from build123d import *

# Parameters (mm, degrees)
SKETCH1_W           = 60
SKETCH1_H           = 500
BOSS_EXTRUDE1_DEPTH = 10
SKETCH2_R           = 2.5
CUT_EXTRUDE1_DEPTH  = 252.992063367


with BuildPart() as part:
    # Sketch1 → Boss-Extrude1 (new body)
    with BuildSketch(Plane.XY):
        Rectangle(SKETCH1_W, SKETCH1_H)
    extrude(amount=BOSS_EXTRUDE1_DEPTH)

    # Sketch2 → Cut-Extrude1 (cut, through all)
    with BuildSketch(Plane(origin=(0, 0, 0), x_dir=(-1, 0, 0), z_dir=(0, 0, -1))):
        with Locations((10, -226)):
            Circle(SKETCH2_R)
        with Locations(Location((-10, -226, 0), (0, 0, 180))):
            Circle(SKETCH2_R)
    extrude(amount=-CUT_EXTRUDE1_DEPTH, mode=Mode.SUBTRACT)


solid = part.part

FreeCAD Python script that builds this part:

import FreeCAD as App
import Part
import Sketcher

doc = App.newDocument("Part")
body = doc.addObject("PartDesign::Body", "Body")

sketch1 = body.newObject("Sketcher::SketchObject", "Sketch")
sketch1.AttachmentSupport = (doc.getObject("XY_Plane"), [""])
sketch1.MapMode = "FlatFace"
sketch1.addGeometry(Part.LineSegment(App.Vector(-30, 250, 0), App.Vector(-30, -250, 0)), False)
sketch1.addGeometry(Part.LineSegment(App.Vector(-30, -250, 0), App.Vector(30, -250, 0)), False)
sketch1.addGeometry(Part.LineSegment(App.Vector(30, -250, 0), App.Vector(30, 250, 0)), False)
sketch1.addGeometry(Part.LineSegment(App.Vector(30, 250, 0), App.Vector(-30, 250, 0)), False)
sketch1.addConstraint(Sketcher.Constraint("Coincident", 0, 2, 1, 1))
sketch1.addConstraint(Sketcher.Constraint("Coincident", 1, 2, 2, 1))
sketch1.addConstraint(Sketcher.Constraint("Coincident", 2, 2, 3, 1))
sketch1.addConstraint(Sketcher.Constraint("Coincident", 3, 2, 0, 1))
sketch1.addConstraint(Sketcher.Constraint("Vertical", 0))
sketch1.addConstraint(Sketcher.Constraint("Horizontal", 1))
sketch1.addConstraint(Sketcher.Constraint("Vertical", 2))
sketch1.addConstraint(Sketcher.Constraint("Horizontal", 3))
sketch1.addConstraint(Sketcher.Constraint("Symmetric", 0, 2, 2, 2, -1, 1))
sketch1.addConstraint(Sketcher.Constraint("DistanceX", 1, 1, 1, 2, 60.0))
sketch1.addConstraint(Sketcher.Constraint("DistanceY", 0, 2, 0, 1, 500.0))
pad1 = body.newObject("PartDesign::Pad", "Pad")
pad1.Profile = sketch1
pad1.Length = 10

sketch2 = body.newObject("Sketcher::SketchObject", "Sketch001")
sketch2.AttachmentSupport = (doc.getObject("XY_Plane"), [""])
sketch2.MapMode = "FlatFace"
sketch2.addGeometry(Part.Circle(App.Vector(-10, -226, 0), App.Vector(0, 0, 1), 2.5), False)
sketch2.addGeometry(Part.Circle(App.Vector(10, -226, 0), App.Vector(0, 0, 1), 2.5), False)
sketch2.addConstraint(Sketcher.Constraint("Equal", 0, 1))
sketch2.addConstraint(Sketcher.Constraint("Symmetric", 0, 3, 1, 3, -2))
sketch2.addConstraint(Sketcher.Constraint("Diameter", 0, 5.0))
sketch2.addConstraint(Sketcher.Constraint("DistanceX", 0, 3, -1, 1, 10.0))
sketch2.addConstraint(Sketcher.Constraint("DistanceY", 0, 3, -1, 1, 226.0))
pocket1 = body.newObject("PartDesign::Pocket", "Pocket")
pocket1.Profile = sketch2
pocket1.Type = "ThroughAll"
pocket1.Reversed = True

doc.recompute()
